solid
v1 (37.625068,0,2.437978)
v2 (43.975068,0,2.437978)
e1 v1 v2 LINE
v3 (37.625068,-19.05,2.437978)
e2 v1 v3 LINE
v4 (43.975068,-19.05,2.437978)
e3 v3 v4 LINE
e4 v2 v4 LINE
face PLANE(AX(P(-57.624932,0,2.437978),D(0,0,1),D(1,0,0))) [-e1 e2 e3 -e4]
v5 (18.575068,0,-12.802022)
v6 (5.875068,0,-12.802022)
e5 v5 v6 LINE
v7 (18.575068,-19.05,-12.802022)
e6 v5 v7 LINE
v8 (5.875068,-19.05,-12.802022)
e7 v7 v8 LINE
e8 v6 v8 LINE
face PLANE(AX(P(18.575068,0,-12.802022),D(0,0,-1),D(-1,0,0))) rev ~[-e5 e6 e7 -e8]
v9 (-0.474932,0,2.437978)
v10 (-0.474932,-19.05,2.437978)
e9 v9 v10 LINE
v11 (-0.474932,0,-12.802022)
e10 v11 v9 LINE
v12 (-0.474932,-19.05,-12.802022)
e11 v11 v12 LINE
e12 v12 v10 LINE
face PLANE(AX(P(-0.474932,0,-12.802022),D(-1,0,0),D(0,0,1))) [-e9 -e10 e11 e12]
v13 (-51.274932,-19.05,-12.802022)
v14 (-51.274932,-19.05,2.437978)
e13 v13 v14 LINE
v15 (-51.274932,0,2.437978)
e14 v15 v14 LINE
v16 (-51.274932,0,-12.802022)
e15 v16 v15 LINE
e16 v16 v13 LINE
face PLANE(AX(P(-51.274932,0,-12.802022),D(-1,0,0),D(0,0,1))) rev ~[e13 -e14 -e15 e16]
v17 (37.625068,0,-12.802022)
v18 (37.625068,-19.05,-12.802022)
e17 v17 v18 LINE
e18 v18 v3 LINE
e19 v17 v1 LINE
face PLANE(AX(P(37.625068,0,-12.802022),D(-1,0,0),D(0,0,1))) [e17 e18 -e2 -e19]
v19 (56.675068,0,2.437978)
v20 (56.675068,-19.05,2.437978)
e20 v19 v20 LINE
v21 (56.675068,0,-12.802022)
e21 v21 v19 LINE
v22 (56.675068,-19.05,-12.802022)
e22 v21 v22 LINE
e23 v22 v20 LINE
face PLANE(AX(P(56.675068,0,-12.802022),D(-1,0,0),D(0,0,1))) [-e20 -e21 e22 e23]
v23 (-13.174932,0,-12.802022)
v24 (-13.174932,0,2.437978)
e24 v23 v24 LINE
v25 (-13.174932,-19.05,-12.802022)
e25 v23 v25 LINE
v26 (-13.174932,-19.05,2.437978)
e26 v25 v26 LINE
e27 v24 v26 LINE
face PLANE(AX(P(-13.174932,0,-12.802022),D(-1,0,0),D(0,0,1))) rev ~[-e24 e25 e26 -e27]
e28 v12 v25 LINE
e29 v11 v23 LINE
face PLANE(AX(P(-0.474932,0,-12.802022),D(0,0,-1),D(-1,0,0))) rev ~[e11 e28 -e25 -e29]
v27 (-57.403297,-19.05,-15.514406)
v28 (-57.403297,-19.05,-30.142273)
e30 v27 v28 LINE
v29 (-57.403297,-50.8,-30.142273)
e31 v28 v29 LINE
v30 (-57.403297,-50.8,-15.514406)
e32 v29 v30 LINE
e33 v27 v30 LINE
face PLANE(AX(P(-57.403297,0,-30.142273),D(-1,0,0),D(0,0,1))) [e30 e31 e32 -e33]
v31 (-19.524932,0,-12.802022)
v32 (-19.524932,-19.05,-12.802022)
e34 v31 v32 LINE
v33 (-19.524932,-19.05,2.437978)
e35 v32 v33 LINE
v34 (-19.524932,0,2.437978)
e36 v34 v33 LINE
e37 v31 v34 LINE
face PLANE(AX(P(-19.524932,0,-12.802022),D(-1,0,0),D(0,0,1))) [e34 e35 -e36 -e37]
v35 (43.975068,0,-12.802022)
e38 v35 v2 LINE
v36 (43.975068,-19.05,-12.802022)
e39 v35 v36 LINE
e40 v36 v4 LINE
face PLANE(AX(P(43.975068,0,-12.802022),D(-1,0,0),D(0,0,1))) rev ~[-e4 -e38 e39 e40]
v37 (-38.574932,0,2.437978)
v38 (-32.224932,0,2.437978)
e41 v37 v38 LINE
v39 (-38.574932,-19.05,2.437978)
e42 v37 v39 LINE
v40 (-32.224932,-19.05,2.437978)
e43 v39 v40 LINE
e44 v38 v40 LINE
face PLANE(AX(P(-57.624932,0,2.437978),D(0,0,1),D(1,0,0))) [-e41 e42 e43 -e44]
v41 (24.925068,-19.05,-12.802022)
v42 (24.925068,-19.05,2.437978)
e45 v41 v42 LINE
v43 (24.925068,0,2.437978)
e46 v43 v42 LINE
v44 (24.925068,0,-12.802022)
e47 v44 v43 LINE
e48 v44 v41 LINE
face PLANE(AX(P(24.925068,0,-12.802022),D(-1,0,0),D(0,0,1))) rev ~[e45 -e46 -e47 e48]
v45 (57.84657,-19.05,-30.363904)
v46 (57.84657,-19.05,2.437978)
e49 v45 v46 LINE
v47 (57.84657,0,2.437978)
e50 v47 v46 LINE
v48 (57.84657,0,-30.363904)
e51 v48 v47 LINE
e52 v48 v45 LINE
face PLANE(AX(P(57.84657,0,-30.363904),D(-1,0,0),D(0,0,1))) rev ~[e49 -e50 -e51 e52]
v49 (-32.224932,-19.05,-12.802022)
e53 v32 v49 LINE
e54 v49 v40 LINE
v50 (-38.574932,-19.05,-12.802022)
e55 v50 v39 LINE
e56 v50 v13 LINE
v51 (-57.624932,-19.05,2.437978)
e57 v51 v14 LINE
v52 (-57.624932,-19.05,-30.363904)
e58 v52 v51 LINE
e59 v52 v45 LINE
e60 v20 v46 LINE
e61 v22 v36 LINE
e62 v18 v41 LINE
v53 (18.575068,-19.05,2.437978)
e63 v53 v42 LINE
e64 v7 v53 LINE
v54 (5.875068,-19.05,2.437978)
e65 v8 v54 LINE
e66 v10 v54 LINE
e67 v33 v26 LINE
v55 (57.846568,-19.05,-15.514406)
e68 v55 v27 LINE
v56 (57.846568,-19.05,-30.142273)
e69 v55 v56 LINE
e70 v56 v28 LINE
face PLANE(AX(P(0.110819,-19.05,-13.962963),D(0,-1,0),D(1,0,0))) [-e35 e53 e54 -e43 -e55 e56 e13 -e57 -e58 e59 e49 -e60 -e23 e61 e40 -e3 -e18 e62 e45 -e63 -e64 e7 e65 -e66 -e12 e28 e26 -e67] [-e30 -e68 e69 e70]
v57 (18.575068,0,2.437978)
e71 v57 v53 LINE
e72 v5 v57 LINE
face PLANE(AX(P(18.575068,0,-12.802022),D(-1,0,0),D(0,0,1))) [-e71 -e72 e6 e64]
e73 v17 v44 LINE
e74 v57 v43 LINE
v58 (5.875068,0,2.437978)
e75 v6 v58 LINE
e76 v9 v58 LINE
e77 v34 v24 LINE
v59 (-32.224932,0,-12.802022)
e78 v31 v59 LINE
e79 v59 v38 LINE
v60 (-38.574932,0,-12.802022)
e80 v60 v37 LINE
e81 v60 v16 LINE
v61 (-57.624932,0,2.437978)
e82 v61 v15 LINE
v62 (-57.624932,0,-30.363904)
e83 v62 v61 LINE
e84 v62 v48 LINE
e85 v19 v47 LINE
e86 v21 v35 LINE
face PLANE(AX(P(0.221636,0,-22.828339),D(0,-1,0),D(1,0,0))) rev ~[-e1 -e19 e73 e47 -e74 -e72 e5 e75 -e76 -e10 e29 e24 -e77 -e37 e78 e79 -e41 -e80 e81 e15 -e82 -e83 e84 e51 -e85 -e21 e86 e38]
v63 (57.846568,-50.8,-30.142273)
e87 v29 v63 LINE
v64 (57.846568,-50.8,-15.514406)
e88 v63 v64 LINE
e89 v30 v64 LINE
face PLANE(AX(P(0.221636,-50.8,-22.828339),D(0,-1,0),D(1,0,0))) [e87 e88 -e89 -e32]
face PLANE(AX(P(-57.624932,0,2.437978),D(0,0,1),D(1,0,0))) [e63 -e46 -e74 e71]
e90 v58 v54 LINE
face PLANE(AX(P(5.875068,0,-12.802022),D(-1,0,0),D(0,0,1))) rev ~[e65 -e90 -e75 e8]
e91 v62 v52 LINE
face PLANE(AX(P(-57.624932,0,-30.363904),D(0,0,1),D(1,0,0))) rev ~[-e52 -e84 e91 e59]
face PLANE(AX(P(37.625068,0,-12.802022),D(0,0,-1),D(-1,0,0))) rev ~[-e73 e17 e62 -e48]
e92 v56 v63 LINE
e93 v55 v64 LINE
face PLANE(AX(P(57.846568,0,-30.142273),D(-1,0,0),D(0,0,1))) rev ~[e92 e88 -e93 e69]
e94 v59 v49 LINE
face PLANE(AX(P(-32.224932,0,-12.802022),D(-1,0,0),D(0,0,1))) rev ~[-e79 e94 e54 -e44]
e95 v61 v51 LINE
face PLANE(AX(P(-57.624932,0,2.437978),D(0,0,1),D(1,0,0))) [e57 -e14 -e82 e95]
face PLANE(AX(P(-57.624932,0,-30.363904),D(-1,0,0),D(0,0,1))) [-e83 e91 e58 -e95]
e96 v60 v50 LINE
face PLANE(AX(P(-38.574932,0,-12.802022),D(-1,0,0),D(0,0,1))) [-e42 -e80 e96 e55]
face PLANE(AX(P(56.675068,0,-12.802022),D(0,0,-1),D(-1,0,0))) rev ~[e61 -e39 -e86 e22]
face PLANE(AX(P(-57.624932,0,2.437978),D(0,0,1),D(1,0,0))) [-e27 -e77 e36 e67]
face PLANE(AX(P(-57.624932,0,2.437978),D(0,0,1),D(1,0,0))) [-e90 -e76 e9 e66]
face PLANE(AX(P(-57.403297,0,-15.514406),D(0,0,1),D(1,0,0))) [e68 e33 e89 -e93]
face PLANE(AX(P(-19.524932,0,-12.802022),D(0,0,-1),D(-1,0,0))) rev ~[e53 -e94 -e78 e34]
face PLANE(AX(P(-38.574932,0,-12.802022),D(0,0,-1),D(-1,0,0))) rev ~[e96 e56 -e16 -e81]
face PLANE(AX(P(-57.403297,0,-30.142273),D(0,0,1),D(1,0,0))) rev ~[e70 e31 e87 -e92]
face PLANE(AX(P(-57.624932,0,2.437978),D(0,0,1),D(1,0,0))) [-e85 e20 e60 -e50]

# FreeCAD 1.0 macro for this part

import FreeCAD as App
import Part
import Sketcher
Q = App.Units.Quantity

doc = App.newDocument("Part")
params = doc.addObject("Spreadsheet::Sheet", "Params")
for row, (alias, value) in enumerate([
    ("pad1_length", "0.75 in"),
    ("pad2_length", "2 in"),
    ("sketch3_width", "0.5 in"),
    ("sketch3_height", "0.6 in"),
    ("pocket1_length", "0.75 in"),
], start=1):
    params.set(f"A{row}", alias)
    params.set(f"B{row}", "=" + value)
    params.setAlias(f"B{row}", alias)

body = doc.addObject("PartDesign::Body", "Body")

# Sketch on XZ plane
sketch1 = body.newObject("Sketcher::SketchObject", "Sketch")
sketch1.AttachmentSupport = (doc.getObject("XZ_Plane"), [""])
sketch1.MapMode = "FlatFace"
sketch1.addGeometry([
    Part.LineSegment(App.Vector(-58, 2, 0), App.Vector(-58, -30, 0)),
    Part.LineSegment(App.Vector(-58, -30, 0), App.Vector(58, -30, 0)),
    Part.LineSegment(App.Vector(58, -30, 0), App.Vector(58, 2, 0)),
    Part.LineSegment(App.Vector(58, 2, 0), App.Vector(-58, 2, 0)),
], False)
sketch1.addConstraint([
    Sketcher.Constraint("Coincident", 0, 2, 1, 1),
    Sketcher.Constraint("Coincident", 1, 2, 2, 1),
    Sketcher.Constraint("Coincident", 2, 2, 3, 1),
    Sketcher.Constraint("Coincident", 3, 2, 0, 1),
    Sketcher.Constraint("Vertical", 0),
    Sketcher.Constraint("Horizontal", 1),
    Sketcher.Constraint("Vertical", 2),
    Sketcher.Constraint("Horizontal", 3),
    Sketcher.Constraint("DistanceX", 1, 1, 1, 2, Q("115.471501 mm")),
    Sketcher.Constraint("DistanceY", 0, 2, 0, 1, Q("32.801882 mm")),
    Sketcher.Constraint("DistanceX", 0, 2, -1, 1, Q("57.624932 mm")),
    Sketcher.Constraint("DistanceY", -1, 1, 2, 2, Q("2.437978 mm")),
])
pad1 = body.newObject("PartDesign::Pad", "Pad")
pad1.Profile = sketch1
pad1.setExpression("Length", "Params.pad1_length")

# Sketch on XZ plane
sketch2 = body.newObject("Sketcher::SketchObject", "Sketch001")
sketch2.AttachmentSupport = (doc.getObject("XZ_Plane"), [""])
sketch2.MapMode = "FlatFace"
sketch2.addGeometry([
    Part.LineSegment(App.Vector(-57, -16, 0), App.Vector(-57, -30, 0)),
    Part.LineSegment(App.Vector(-57, -30, 0), App.Vector(58, -30, 0)),
    Part.LineSegment(App.Vector(58, -30, 0), App.Vector(58, -16, 0)),
    Part.LineSegment(App.Vector(58, -16, 0), App.Vector(-57, -16, 0)),
], False)
sketch2.addConstraint([
    Sketcher.Constraint("Coincident", 0, 2, 1, 1),
    Sketcher.Constraint("Coincident", 1, 2, 2, 1),
    Sketcher.Constraint("Coincident", 2, 2, 3, 1),
    Sketcher.Constraint("Coincident", 3, 2, 0, 1),
    Sketcher.Constraint("Vertical", 0),
    Sketcher.Constraint("Horizontal", 1),
    Sketcher.Constraint("Vertical", 2),
    Sketcher.Constraint("Horizontal", 3),
    Sketcher.Constraint("DistanceX", 1, 1, 1, 2, Q("115.249865 mm")),
    Sketcher.Constraint("DistanceY", 0, 2, 0, 1, Q("14.627867 mm")),
    Sketcher.Constraint("DistanceX", -1, 1, 1, 2, Q("57.846568 mm")),
    Sketcher.Constraint("DistanceY", 0, 2, -1, 1, Q("30.142273 mm")),
])
pad2 = body.newObject("PartDesign::Pad", "Pad001")
pad2.Profile = sketch2
pad2.setExpression("Length", "Params.pad2_length")

# Sketch on XZ plane
sketch3 = body.newObject("Sketcher::SketchObject", "Sketch002")
sketch3.AttachmentSupport = (doc.getObject("XZ_Plane"), [""])
sketch3.MapMode = "FlatFace"
sketch3.addGeometry([
    Part.LineSegment(App.Vector(-39, 2, 0), App.Vector(-39, -13, 0)),  # 0
    Part.LineSegment(App.Vector(-39, -13, 0), App.Vector(-51, -13, 0)),  # 1
    Part.LineSegment(App.Vector(-51, -13, 0), App.Vector(-51, 2, 0)),  # 2
    Part.LineSegment(App.Vector(-51, 2, 0), App.Vector(-39, 2, 0)),  # 3
    Part.LineSegment(App.Vector(-20, 2, 0), App.Vector(-20, -13, 0)),  # 4
    Part.LineSegment(App.Vector(-20, -13, 0), App.Vector(-32, -13, 0)),  # 5
    Part.LineSegment(App.Vector(-32, -13, 0), App.Vector(-32, 2, 0)),  # 6
    Part.LineSegment(App.Vector(-32, 2, 0), App.Vector(-20, 2, 0)),  # 7
    Part.LineSegment(App.Vector(0, 2, 0), App.Vector(0, -13, 0)),  # 8
    Part.LineSegment(App.Vector(0, -13, 0), App.Vector(-13, -13, 0)),  # 9
    Part.LineSegment(App.Vector(-13, -13, 0), App.Vector(-13, 2, 0)),  # 10
    Part.LineSegment(App.Vector(-13, 2, 0), App.Vector(0, 2, 0)),  # 11
    Part.LineSegment(App.Vector(19, 2, 0), App.Vector(19, -13, 0)),  # 12
    Part.LineSegment(App.Vector(19, -13, 0), App.Vector(6, -13, 0)),  # 13
    Part.LineSegment(App.Vector(6, -13, 0), App.Vector(6, 2, 0)),  # 14
    Part.LineSegment(App.Vector(6, 2, 0), App.Vector(19, 2, 0)),  # 15
    Part.LineSegment(App.Vector(38, 2, 0), App.Vector(38, -13, 0)),  # 16
    Part.LineSegment(App.Vector(38, -13, 0), App.Vector(25, -13, 0)),  # 17
    Part.LineSegment(App.Vector(25, -13, 0), App.Vector(25, 2, 0)),  # 18
    Part.LineSegment(App.Vector(25, 2, 0), App.Vector(38, 2, 0)),  # 19
    Part.LineSegment(App.Vector(57, 2, 0), App.Vector(57, -13, 0)),  # 20
    Part.LineSegment(App.Vector(57, -13, 0), App.Vector(44, -13, 0)),  # 21
    Part.LineSegment(App.Vector(44, -13, 0), App.Vector(44, 2, 0)),  # 22
    Part.LineSegment(App.Vector(44, 2, 0), App.Vector(57, 2, 0)),  # 23
], False)
sketch3.addConstraint([
    Sketcher.Constraint("Coincident", 0, 2, 1, 1),
    Sketcher.Constraint("Coincident", 1, 2, 2, 1),
    Sketcher.Constraint("Coincident", 2, 2, 3, 1),
    Sketcher.Constraint("Coincident", 3, 2, 0, 1),
    Sketcher.Constraint("Coincident", 4, 2, 5, 1),
    Sketcher.Constraint("Coincident", 5, 2, 6, 1),
    Sketcher.Constraint("Coincident", 6, 2, 7, 1),
    Sketcher.Constraint("Coincident", 7, 2, 4, 1),
    Sketcher.Constraint("Coincident", 8, 2, 9, 1),
    Sketcher.Constraint("Coincident", 9, 2, 10, 1),
    Sketcher.Constraint("Coincident", 10, 2, 11, 1),
    Sketcher.Constraint("Coincident", 11, 2, 8, 1),
    Sketcher.Constraint("Coincident", 12, 2, 13, 1),
    Sketcher.Constraint("Coincident", 13, 2, 14, 1),
    Sketcher.Constraint("Coincident", 14, 2, 15, 1),
    Sketcher.Constraint("Coincident", 15, 2, 12, 1),
    Sketcher.Constraint("Coincident", 16, 2, 17, 1),
    Sketcher.Constraint("Coincident", 17, 2, 18, 1),
    Sketcher.Constraint("Coincident", 18, 2, 19, 1),
    Sketcher.Constraint("Coincident", 19, 2, 16, 1),
    Sketcher.Constraint("Coincident", 20, 2, 21, 1),
    Sketcher.Constraint("Coincident", 21, 2, 22, 1),
    Sketcher.Constraint("Coincident", 22, 2, 23, 1),
    Sketcher.Constraint("Coincident", 23, 2, 20, 1),
    Sketcher.Constraint("Vertical", 0),
    Sketcher.Constraint("Horizontal", 1),
    Sketcher.Constraint("Vertical", 2),
    Sketcher.Constraint("Horizontal", 3),
    Sketcher.Constraint("Vertical", 4),
    Sketcher.Constraint("Horizontal", 5),
    Sketcher.Constraint("Vertical", 6),
    Sketcher.Constraint("Horizontal", 7),
    Sketcher.Constraint("Vertical", 8),
    Sketcher.Constraint("Horizontal", 9),
    Sketcher.Constraint("Vertical", 10),
    Sketcher.Constraint("Horizontal", 11),
    Sketcher.Constraint("Vertical", 12),
    Sketcher.Constraint("Horizontal", 13),
    Sketcher.Constraint("Vertical", 14),
    Sketcher.Constraint("Horizontal", 15),
    Sketcher.Constraint("Vertical", 16),
    Sketcher.Constraint("Horizontal", 17),
    Sketcher.Constraint("Vertical", 18),
    Sketcher.Constraint("Horizontal", 19),
    Sketcher.Constraint("Vertical", 20),
    Sketcher.Constraint("Horizontal", 21),
    Sketcher.Constraint("Vertical", 22),
    Sketcher.Constraint("Horizontal", 23),
    Sketcher.Constraint("Horizontal", 1, 2, 4, 2),
    Sketcher.Constraint("Horizontal", 3, 2, 6, 2),
    Sketcher.Constraint("Horizontal", 5, 2, 8, 2),
    Sketcher.Constraint("Horizontal", 7, 2, 10, 2),
    Sketcher.Constraint("Horizontal", 9, 2, 12, 2),
    Sketcher.Constraint("Horizontal", 11, 2, 14, 2),
    Sketcher.Constraint("Horizontal", 13, 2, 16, 2),
    Sketcher.Constraint("Horizontal", 15, 2, 18, 2),
    Sketcher.Constraint("Horizontal", 17, 2, 20, 2),
    Sketcher.Constraint("Horizontal", 19, 2, 22, 2),
    Sketcher.Constraint("Equal", 3, 5),
    Sketcher.Constraint("Equal", 7, 9),
    Sketcher.Constraint("Equal", 11, 13),
    Sketcher.Constraint("Equal", 15, 17),
    Sketcher.Constraint("Equal", 19, 21),
    Sketcher.Constraint("DistanceX", 1, 2, 1, 1, Q("0.5 in")),
    Sketcher.Constraint("DistanceY", 0, 2, 0, 1, Q("0.6 in")),
    Sketcher.Constraint("DistanceX", 0, 2, 8, 2, Q("1.5 in")),
    Sketcher.Constraint("DistanceX", 4, 2, 12, 2, Q("1.5 in")),
    Sketcher.Constraint("DistanceX", 8, 2, 16, 2, Q("1.5 in")),
    Sketcher.Constraint("DistanceX", 12, 2, 20, 2, Q("1.5 in")),
    Sketcher.Constraint("DistanceX", 0, 2, 4, 2, Q("0.75 in")),
    Sketcher.Constraint("DistanceX", 0, 2, -1, 1, Q("38.574932 mm")),
    Sketcher.Constraint("DistanceY", 0, 2, -1, 1, Q("12.802022 mm")),
])
sketch3.setExpression("Constraints[63]", "Params.sketch3_width")
sketch3.setExpression("Constraints[64]", "Params.sketch3_height")
pocket1 = body.newObject("PartDesign::Pocket", "Pocket")
pocket1.Profile = sketch3
pocket1.setExpression("Length", "Params.pocket1_length")
pocket1.Reversed = True

doc.recompute()
